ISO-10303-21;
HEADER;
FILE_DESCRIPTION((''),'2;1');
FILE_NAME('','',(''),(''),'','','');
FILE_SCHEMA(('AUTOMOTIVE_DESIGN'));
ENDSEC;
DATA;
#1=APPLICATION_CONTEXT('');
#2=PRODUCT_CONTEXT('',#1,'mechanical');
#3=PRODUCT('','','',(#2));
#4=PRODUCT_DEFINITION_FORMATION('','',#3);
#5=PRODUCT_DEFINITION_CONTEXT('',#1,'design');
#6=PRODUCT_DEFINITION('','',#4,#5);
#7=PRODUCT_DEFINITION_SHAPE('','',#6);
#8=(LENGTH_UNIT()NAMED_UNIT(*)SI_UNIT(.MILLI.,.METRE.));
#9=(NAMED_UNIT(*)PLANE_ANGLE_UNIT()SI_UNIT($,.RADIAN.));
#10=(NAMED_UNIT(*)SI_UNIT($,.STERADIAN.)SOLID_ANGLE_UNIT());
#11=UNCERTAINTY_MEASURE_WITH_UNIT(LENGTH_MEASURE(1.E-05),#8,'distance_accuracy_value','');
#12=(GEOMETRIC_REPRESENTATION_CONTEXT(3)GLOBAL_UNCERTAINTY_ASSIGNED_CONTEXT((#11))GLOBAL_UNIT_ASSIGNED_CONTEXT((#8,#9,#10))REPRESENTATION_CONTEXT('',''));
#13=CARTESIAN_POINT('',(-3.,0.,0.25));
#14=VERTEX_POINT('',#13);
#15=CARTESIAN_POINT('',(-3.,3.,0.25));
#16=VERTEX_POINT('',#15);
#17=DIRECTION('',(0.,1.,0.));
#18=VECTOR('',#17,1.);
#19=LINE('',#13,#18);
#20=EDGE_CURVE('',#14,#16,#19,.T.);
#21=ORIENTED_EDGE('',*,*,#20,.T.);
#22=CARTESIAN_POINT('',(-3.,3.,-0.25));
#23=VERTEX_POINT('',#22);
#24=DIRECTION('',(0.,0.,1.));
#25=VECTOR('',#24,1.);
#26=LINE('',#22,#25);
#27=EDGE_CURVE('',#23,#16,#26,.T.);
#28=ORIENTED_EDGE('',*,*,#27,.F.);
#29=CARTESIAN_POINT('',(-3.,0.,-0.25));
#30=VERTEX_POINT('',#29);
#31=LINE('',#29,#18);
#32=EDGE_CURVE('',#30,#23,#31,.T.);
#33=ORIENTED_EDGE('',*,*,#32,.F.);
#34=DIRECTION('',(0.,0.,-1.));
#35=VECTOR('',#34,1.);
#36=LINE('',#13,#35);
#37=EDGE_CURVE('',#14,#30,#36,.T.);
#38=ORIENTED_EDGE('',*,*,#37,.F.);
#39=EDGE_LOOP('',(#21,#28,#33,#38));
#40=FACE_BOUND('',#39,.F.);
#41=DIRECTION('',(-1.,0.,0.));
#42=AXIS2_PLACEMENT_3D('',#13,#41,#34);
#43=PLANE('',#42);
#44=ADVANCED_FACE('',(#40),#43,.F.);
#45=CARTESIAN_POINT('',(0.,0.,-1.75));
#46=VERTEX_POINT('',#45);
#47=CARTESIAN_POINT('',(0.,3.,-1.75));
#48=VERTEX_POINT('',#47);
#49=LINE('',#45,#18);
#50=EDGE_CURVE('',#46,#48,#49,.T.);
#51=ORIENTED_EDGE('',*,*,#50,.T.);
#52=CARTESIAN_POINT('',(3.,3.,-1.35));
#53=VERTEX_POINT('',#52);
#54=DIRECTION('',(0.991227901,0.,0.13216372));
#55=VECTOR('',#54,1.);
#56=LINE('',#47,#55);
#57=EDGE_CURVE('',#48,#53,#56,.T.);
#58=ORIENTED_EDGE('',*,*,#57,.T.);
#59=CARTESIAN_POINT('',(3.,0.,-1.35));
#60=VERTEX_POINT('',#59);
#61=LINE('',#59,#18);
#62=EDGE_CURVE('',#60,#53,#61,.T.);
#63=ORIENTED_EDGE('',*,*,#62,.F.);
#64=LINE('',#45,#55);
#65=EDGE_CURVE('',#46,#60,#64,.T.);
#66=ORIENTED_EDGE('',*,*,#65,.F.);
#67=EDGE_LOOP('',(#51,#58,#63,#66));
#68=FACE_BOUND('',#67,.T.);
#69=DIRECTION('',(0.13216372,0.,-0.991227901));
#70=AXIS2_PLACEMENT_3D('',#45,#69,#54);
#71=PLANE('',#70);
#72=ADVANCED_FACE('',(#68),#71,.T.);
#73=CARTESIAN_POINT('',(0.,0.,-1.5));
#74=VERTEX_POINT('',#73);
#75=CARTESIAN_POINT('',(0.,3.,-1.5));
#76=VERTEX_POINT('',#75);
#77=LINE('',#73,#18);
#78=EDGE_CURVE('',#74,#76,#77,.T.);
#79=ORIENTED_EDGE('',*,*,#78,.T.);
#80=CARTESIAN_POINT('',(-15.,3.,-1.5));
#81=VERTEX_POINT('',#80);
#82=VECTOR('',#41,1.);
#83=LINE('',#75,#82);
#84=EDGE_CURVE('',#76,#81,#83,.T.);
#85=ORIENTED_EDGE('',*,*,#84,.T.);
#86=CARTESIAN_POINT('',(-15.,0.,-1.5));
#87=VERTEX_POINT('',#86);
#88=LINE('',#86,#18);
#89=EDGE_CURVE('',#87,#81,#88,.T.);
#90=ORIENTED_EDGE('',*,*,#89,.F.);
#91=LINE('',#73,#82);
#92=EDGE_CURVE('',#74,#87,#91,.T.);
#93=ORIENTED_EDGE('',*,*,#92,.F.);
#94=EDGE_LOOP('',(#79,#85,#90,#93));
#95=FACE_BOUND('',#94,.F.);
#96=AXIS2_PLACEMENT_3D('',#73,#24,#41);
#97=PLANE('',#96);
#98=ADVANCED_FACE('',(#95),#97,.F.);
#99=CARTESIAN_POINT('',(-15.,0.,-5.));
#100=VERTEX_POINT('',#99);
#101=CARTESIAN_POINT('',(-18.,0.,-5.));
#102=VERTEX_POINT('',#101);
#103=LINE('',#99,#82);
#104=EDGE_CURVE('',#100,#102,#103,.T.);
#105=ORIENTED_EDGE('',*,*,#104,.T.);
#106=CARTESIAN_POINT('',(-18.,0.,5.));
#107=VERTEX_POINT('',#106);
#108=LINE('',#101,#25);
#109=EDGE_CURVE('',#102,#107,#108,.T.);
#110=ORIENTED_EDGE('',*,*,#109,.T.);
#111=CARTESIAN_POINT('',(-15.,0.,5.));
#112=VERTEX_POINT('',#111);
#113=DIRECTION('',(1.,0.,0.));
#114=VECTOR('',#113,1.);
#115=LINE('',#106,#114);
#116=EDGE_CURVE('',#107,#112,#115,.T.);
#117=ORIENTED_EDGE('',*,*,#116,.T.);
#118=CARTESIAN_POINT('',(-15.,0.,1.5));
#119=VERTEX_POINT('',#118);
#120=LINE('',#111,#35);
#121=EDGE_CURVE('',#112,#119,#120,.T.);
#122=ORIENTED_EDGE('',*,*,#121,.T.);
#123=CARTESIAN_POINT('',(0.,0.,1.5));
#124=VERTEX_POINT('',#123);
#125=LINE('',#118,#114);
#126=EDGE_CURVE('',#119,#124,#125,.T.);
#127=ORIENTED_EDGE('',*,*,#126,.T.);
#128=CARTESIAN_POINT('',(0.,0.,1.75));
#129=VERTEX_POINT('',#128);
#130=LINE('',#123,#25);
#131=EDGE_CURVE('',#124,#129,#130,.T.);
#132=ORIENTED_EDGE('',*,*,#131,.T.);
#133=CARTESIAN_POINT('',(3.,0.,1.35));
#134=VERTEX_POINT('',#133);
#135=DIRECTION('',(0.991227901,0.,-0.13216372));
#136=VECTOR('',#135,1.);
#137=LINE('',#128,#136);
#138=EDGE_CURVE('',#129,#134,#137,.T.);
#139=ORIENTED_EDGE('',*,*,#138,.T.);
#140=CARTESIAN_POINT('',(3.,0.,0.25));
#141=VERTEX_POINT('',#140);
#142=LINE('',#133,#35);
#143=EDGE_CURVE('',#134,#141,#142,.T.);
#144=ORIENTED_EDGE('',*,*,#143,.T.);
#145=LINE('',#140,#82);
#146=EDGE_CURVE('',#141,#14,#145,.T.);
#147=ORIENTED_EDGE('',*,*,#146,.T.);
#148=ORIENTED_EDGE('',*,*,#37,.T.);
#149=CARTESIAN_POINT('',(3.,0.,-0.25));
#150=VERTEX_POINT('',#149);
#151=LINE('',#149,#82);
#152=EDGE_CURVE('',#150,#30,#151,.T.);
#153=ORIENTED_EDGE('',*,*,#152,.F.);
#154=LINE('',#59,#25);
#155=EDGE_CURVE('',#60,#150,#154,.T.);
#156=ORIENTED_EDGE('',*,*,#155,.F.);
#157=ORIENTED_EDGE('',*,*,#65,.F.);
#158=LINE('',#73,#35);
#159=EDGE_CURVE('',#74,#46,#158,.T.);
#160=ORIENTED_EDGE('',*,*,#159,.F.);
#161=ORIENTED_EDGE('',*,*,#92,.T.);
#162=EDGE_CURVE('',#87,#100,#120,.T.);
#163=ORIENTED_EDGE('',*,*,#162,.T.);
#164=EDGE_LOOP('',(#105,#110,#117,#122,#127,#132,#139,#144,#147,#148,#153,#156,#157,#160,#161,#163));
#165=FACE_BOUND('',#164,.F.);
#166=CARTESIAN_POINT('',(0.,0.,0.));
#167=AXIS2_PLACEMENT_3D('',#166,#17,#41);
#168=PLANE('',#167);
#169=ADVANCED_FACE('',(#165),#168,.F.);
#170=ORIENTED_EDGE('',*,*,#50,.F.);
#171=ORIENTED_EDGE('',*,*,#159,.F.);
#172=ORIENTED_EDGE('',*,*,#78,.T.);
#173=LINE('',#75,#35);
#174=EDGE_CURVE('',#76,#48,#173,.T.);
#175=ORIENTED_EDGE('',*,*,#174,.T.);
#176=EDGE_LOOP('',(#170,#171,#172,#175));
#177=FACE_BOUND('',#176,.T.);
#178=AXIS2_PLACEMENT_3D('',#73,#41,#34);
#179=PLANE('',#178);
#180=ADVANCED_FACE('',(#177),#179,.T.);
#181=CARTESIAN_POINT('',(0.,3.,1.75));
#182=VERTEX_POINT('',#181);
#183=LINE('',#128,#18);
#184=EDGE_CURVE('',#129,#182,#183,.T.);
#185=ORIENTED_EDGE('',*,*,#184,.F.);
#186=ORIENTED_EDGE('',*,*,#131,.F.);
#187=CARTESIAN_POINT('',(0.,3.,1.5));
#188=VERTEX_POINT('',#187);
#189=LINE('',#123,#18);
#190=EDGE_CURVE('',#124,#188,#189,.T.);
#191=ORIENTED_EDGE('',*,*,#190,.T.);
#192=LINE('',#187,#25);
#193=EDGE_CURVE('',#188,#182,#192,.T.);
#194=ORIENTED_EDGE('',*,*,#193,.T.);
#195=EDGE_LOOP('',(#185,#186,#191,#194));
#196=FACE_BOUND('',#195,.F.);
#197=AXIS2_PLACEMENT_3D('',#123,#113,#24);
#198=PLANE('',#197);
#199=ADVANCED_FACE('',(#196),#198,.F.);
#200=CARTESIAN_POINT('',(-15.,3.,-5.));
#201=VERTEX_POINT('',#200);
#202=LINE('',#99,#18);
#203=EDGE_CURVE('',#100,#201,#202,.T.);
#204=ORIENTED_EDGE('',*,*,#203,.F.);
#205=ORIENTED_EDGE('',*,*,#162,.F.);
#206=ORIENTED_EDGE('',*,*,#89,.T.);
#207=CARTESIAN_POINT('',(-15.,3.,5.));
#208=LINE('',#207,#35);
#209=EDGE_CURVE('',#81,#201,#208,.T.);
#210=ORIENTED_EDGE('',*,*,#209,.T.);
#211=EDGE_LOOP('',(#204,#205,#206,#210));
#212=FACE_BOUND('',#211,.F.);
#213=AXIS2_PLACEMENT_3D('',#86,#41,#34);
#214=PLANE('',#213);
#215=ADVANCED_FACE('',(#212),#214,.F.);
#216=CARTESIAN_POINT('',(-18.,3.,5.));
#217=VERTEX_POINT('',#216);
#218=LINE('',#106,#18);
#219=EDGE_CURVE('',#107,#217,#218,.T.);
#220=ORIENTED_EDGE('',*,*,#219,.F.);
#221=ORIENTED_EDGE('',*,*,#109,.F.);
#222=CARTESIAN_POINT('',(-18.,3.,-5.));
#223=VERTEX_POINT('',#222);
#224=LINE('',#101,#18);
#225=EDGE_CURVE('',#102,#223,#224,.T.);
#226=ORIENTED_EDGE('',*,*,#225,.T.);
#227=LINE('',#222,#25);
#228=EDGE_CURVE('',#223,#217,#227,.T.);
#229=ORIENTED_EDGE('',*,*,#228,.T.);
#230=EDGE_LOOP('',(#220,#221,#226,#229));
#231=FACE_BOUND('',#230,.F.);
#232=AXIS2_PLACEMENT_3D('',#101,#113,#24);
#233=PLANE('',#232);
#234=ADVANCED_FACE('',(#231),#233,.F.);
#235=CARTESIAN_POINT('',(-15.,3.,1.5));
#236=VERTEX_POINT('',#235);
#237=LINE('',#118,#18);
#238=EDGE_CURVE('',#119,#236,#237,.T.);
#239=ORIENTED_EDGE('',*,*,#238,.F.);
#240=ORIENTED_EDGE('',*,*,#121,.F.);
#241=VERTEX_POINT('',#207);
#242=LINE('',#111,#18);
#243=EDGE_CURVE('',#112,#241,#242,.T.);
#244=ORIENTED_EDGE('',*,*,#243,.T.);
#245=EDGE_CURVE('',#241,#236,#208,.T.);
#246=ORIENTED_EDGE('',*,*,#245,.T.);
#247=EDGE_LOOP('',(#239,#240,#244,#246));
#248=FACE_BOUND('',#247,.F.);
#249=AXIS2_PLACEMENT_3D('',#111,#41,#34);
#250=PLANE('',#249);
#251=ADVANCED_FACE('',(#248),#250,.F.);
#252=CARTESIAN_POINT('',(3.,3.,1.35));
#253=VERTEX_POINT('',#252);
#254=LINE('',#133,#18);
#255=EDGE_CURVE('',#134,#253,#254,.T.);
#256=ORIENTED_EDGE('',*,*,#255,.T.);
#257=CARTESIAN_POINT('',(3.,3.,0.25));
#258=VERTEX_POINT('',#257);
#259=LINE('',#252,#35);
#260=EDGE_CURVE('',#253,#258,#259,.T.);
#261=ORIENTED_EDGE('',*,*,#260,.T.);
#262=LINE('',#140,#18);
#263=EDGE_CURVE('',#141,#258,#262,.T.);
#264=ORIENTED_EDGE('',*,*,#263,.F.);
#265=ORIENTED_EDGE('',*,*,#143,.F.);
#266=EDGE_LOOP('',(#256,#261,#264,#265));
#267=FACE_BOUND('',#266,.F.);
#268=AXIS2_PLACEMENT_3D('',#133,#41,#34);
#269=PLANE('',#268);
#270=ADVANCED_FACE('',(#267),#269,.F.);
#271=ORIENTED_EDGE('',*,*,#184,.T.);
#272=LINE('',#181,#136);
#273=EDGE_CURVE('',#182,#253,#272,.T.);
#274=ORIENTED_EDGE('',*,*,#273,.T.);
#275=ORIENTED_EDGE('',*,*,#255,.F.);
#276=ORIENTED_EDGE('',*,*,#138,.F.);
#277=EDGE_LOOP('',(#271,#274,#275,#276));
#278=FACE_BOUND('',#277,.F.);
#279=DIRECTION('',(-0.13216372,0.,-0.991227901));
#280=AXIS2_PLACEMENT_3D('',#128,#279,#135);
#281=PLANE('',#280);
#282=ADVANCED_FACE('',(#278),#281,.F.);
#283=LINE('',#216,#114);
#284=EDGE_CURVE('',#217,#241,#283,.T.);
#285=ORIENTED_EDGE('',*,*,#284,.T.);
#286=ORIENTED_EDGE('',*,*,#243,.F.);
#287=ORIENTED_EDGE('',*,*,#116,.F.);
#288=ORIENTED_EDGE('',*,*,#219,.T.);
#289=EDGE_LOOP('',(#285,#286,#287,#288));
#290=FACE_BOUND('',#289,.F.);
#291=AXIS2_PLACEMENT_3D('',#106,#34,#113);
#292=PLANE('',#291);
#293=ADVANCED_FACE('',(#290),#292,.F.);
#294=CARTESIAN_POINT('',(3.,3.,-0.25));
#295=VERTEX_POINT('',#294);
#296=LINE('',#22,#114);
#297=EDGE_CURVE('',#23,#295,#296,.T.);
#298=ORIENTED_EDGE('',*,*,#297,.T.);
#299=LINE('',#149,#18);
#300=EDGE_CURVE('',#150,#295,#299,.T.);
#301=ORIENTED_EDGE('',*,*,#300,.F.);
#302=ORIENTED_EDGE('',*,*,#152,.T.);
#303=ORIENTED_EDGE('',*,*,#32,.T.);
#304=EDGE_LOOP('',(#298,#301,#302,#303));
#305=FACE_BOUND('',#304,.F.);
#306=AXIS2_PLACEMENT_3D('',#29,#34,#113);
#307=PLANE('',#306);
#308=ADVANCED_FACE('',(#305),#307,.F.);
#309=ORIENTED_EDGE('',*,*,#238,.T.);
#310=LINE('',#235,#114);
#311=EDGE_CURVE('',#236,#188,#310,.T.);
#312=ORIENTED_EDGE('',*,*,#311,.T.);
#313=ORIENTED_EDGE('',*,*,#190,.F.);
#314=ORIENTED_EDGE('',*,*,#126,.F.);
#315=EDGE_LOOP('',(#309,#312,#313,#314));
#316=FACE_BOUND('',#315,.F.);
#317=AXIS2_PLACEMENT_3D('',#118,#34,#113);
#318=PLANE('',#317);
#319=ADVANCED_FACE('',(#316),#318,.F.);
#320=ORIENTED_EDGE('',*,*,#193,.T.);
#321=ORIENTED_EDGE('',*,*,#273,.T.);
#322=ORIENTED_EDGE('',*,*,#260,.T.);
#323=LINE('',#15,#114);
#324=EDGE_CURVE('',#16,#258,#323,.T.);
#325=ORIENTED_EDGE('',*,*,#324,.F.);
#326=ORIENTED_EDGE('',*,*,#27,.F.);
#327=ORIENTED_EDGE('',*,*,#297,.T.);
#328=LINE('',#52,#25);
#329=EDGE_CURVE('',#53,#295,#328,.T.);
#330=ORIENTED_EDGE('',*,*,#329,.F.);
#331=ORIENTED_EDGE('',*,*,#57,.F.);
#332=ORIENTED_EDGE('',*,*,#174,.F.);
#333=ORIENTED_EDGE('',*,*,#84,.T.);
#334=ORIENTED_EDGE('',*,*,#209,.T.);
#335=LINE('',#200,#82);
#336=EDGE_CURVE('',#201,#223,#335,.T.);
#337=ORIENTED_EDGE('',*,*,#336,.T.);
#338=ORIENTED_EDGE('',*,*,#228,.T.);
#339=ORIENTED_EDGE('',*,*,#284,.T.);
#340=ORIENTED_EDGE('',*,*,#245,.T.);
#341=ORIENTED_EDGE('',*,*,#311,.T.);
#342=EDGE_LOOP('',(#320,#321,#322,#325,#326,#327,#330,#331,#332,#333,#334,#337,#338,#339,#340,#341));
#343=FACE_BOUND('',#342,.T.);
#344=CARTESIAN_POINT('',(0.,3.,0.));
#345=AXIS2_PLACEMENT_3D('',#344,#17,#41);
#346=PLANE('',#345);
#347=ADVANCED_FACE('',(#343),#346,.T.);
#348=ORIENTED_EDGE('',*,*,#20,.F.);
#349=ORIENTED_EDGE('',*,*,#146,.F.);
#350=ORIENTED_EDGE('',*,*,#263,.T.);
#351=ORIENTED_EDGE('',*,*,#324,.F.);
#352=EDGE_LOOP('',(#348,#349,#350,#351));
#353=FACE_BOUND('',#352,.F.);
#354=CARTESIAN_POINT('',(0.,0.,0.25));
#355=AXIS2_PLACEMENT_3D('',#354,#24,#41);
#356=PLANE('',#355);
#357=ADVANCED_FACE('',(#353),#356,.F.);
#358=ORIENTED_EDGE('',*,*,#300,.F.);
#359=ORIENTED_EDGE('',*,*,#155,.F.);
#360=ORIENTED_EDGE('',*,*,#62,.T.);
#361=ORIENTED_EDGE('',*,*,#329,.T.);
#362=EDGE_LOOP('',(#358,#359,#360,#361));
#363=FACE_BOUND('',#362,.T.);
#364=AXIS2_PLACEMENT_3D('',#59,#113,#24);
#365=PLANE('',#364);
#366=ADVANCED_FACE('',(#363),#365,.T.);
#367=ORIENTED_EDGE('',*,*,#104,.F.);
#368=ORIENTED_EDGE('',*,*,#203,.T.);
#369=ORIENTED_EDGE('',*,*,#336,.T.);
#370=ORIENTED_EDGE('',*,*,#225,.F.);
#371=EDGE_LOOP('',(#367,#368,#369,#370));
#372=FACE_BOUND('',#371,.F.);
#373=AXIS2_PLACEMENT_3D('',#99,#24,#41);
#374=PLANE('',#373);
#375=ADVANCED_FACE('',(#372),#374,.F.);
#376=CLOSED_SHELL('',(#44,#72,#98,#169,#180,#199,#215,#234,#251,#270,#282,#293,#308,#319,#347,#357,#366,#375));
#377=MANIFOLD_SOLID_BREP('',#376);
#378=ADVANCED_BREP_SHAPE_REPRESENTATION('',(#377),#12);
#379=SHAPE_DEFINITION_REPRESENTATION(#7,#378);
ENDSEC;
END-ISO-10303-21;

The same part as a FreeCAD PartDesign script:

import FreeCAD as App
import Part
import Sketcher

doc = App.newDocument("Part")
body = doc.addObject("PartDesign::Body", "Body")

# Sketch on XZ plane
sketch1 = doc.addObject("Sketcher::SketchObject", "Sketch")
body.addObject(sketch1)
sketch1.AttachmentSupport = (doc.XZ_Plane, [""])
sketch1.MapMode = "FlatFace"
sketch1.addGeometry([
    Part.LineSegment(App.Vector(-3, 0.25, 0), App.Vector(-3, -0.25, 0)),  # 0
    Part.LineSegment(App.Vector(-3, -0.25, 0), App.Vector(3, -0.25, 0)),  # 1
    Part.LineSegment(App.Vector(3, -0.25, 0), App.Vector(3, -1.35, 0)),  # 2
    Part.LineSegment(App.Vector(3, -1.35, 0), App.Vector(0, -1.75, 0)),  # 3
    Part.LineSegment(App.Vector(0, -1.75, 0), App.Vector(0, -1.5, 0)),  # 4
    Part.LineSegment(App.Vector(0, -1.5, 0), App.Vector(-15, -1.5, 0)),  # 5
    Part.LineSegment(App.Vector(-15, -1.5, 0), App.Vector(-15, -5, 0)),  # 6
    Part.LineSegment(App.Vector(-15, -5, 0), App.Vector(-18, -5, 0)),  # 7
    Part.LineSegment(App.Vector(-18, -5, 0), App.Vector(-18, 5, 0)),  # 8
    Part.LineSegment(App.Vector(-18, 5, 0), App.Vector(-15, 5, 0)),  # 9
    Part.LineSegment(App.Vector(-15, 5, 0), App.Vector(-15, 1.5, 0)),  # 10
    Part.LineSegment(App.Vector(-15, 1.5, 0), App.Vector(0, 1.5, 0)),  # 11
    Part.LineSegment(App.Vector(0, 1.5, 0), App.Vector(0, 1.75, 0)),  # 12
    Part.LineSegment(App.Vector(0, 1.75, 0), App.Vector(3, 1.35, 0)),  # 13
    Part.LineSegment(App.Vector(3, 1.35, 0), App.Vector(3, 0.25, 0)),  # 14
    Part.LineSegment(App.Vector(3, 0.25, 0), App.Vector(-3, 0.25, 0)),  # 15
], False)
sketch1.addConstraint([
    Sketcher.Constraint("Coincident", 0, 2, 1, 1),
    Sketcher.Constraint("Coincident", 1, 2, 2, 1),
    Sketcher.Constraint("Coincident", 2, 2, 3, 1),
    Sketcher.Constraint("Coincident", 3, 2, 4, 1),
    Sketcher.Constraint("Coincident", 4, 2, 5, 1),
    Sketcher.Constraint("Coincident", 5, 2, 6, 1),
    Sketcher.Constraint("Coincident", 6, 2, 7, 1),
    Sketcher.Constraint("Coincident", 7, 2, 8, 1),
    Sketcher.Constraint("Coincident", 8, 2, 9, 1),
    Sketcher.Constraint("Coincident", 9, 2, 10, 1),
    Sketcher.Constraint("Coincident", 10, 2, 11, 1),
    Sketcher.Constraint("Coincident", 11, 2, 12, 1),
    Sketcher.Constraint("Coincident", 12, 2, 13, 1),
    Sketcher.Constraint("Coincident", 13, 2, 14, 1),
    Sketcher.Constraint("Coincident", 14, 2, 15, 1),
    Sketcher.Constraint("Coincident", 15, 2, 0, 1),
    Sketcher.Constraint("Vertical", 0),
    Sketcher.Constraint("Horizontal", 1),
    Sketcher.Constraint("Vertical", 2),
    Sketcher.Constraint("Vertical", 4),
    Sketcher.Constraint("Horizontal", 5),
    Sketcher.Constraint("Vertical", 6),
    Sketcher.Constraint("Horizontal", 7),
    Sketcher.Constraint("Vertical", 8),
    Sketcher.Constraint("Horizontal", 9),
    Sketcher.Constraint("Vertical", 10),
    Sketcher.Constraint("Horizontal", 11),
    Sketcher.Constraint("Vertical", 12),
    Sketcher.Constraint("Vertical", 14),
    Sketcher.Constraint("Horizontal", 15),
    Sketcher.Constraint("Symmetric", 4, 2, 11, 2, -1, 1),
    Sketcher.Constraint("Symmetric", 0, 2, 14, 2, -1, 1),
    Sketcher.Constraint("Symmetric", 6, 2, 9, 2, -1),
    Sketcher.Constraint("Symmetric", 3, 2, 12, 2, -1),
    Sketcher.Constraint("Symmetric", 2, 2, 13, 2, -1),
    Sketcher.Constraint("DistanceX", 5, 2, 5, 1, 15.0),
    Sketcher.Constraint("DistanceX", 7, 2, 7, 1, 3.0),
    Sketcher.Constraint("DistanceY", 8, 1, 8, 2, 10.0),
    Sketcher.Constraint("DistanceY", 2, 2, 2, 1, 1.1),
    Sketcher.Constraint("DistanceX", 0, 2, -1, 1, 3.0),
    Sketcher.Constraint("DistanceY", 5, 2, 10, 2, 3.0),
    Sketcher.Constraint("DistanceY", 4, 1, 4, 2, 0.25),
    Sketcher.Constraint("DistanceY", 0, 2, -1, 1, 0.25),
])
pad1 = doc.addObject("PartDesign::Pad", "Pad")
body.addObject(pad1)
pad1.Profile = sketch1
pad1.Length = 3
pad1.Reversed = True

doc.recompute()
